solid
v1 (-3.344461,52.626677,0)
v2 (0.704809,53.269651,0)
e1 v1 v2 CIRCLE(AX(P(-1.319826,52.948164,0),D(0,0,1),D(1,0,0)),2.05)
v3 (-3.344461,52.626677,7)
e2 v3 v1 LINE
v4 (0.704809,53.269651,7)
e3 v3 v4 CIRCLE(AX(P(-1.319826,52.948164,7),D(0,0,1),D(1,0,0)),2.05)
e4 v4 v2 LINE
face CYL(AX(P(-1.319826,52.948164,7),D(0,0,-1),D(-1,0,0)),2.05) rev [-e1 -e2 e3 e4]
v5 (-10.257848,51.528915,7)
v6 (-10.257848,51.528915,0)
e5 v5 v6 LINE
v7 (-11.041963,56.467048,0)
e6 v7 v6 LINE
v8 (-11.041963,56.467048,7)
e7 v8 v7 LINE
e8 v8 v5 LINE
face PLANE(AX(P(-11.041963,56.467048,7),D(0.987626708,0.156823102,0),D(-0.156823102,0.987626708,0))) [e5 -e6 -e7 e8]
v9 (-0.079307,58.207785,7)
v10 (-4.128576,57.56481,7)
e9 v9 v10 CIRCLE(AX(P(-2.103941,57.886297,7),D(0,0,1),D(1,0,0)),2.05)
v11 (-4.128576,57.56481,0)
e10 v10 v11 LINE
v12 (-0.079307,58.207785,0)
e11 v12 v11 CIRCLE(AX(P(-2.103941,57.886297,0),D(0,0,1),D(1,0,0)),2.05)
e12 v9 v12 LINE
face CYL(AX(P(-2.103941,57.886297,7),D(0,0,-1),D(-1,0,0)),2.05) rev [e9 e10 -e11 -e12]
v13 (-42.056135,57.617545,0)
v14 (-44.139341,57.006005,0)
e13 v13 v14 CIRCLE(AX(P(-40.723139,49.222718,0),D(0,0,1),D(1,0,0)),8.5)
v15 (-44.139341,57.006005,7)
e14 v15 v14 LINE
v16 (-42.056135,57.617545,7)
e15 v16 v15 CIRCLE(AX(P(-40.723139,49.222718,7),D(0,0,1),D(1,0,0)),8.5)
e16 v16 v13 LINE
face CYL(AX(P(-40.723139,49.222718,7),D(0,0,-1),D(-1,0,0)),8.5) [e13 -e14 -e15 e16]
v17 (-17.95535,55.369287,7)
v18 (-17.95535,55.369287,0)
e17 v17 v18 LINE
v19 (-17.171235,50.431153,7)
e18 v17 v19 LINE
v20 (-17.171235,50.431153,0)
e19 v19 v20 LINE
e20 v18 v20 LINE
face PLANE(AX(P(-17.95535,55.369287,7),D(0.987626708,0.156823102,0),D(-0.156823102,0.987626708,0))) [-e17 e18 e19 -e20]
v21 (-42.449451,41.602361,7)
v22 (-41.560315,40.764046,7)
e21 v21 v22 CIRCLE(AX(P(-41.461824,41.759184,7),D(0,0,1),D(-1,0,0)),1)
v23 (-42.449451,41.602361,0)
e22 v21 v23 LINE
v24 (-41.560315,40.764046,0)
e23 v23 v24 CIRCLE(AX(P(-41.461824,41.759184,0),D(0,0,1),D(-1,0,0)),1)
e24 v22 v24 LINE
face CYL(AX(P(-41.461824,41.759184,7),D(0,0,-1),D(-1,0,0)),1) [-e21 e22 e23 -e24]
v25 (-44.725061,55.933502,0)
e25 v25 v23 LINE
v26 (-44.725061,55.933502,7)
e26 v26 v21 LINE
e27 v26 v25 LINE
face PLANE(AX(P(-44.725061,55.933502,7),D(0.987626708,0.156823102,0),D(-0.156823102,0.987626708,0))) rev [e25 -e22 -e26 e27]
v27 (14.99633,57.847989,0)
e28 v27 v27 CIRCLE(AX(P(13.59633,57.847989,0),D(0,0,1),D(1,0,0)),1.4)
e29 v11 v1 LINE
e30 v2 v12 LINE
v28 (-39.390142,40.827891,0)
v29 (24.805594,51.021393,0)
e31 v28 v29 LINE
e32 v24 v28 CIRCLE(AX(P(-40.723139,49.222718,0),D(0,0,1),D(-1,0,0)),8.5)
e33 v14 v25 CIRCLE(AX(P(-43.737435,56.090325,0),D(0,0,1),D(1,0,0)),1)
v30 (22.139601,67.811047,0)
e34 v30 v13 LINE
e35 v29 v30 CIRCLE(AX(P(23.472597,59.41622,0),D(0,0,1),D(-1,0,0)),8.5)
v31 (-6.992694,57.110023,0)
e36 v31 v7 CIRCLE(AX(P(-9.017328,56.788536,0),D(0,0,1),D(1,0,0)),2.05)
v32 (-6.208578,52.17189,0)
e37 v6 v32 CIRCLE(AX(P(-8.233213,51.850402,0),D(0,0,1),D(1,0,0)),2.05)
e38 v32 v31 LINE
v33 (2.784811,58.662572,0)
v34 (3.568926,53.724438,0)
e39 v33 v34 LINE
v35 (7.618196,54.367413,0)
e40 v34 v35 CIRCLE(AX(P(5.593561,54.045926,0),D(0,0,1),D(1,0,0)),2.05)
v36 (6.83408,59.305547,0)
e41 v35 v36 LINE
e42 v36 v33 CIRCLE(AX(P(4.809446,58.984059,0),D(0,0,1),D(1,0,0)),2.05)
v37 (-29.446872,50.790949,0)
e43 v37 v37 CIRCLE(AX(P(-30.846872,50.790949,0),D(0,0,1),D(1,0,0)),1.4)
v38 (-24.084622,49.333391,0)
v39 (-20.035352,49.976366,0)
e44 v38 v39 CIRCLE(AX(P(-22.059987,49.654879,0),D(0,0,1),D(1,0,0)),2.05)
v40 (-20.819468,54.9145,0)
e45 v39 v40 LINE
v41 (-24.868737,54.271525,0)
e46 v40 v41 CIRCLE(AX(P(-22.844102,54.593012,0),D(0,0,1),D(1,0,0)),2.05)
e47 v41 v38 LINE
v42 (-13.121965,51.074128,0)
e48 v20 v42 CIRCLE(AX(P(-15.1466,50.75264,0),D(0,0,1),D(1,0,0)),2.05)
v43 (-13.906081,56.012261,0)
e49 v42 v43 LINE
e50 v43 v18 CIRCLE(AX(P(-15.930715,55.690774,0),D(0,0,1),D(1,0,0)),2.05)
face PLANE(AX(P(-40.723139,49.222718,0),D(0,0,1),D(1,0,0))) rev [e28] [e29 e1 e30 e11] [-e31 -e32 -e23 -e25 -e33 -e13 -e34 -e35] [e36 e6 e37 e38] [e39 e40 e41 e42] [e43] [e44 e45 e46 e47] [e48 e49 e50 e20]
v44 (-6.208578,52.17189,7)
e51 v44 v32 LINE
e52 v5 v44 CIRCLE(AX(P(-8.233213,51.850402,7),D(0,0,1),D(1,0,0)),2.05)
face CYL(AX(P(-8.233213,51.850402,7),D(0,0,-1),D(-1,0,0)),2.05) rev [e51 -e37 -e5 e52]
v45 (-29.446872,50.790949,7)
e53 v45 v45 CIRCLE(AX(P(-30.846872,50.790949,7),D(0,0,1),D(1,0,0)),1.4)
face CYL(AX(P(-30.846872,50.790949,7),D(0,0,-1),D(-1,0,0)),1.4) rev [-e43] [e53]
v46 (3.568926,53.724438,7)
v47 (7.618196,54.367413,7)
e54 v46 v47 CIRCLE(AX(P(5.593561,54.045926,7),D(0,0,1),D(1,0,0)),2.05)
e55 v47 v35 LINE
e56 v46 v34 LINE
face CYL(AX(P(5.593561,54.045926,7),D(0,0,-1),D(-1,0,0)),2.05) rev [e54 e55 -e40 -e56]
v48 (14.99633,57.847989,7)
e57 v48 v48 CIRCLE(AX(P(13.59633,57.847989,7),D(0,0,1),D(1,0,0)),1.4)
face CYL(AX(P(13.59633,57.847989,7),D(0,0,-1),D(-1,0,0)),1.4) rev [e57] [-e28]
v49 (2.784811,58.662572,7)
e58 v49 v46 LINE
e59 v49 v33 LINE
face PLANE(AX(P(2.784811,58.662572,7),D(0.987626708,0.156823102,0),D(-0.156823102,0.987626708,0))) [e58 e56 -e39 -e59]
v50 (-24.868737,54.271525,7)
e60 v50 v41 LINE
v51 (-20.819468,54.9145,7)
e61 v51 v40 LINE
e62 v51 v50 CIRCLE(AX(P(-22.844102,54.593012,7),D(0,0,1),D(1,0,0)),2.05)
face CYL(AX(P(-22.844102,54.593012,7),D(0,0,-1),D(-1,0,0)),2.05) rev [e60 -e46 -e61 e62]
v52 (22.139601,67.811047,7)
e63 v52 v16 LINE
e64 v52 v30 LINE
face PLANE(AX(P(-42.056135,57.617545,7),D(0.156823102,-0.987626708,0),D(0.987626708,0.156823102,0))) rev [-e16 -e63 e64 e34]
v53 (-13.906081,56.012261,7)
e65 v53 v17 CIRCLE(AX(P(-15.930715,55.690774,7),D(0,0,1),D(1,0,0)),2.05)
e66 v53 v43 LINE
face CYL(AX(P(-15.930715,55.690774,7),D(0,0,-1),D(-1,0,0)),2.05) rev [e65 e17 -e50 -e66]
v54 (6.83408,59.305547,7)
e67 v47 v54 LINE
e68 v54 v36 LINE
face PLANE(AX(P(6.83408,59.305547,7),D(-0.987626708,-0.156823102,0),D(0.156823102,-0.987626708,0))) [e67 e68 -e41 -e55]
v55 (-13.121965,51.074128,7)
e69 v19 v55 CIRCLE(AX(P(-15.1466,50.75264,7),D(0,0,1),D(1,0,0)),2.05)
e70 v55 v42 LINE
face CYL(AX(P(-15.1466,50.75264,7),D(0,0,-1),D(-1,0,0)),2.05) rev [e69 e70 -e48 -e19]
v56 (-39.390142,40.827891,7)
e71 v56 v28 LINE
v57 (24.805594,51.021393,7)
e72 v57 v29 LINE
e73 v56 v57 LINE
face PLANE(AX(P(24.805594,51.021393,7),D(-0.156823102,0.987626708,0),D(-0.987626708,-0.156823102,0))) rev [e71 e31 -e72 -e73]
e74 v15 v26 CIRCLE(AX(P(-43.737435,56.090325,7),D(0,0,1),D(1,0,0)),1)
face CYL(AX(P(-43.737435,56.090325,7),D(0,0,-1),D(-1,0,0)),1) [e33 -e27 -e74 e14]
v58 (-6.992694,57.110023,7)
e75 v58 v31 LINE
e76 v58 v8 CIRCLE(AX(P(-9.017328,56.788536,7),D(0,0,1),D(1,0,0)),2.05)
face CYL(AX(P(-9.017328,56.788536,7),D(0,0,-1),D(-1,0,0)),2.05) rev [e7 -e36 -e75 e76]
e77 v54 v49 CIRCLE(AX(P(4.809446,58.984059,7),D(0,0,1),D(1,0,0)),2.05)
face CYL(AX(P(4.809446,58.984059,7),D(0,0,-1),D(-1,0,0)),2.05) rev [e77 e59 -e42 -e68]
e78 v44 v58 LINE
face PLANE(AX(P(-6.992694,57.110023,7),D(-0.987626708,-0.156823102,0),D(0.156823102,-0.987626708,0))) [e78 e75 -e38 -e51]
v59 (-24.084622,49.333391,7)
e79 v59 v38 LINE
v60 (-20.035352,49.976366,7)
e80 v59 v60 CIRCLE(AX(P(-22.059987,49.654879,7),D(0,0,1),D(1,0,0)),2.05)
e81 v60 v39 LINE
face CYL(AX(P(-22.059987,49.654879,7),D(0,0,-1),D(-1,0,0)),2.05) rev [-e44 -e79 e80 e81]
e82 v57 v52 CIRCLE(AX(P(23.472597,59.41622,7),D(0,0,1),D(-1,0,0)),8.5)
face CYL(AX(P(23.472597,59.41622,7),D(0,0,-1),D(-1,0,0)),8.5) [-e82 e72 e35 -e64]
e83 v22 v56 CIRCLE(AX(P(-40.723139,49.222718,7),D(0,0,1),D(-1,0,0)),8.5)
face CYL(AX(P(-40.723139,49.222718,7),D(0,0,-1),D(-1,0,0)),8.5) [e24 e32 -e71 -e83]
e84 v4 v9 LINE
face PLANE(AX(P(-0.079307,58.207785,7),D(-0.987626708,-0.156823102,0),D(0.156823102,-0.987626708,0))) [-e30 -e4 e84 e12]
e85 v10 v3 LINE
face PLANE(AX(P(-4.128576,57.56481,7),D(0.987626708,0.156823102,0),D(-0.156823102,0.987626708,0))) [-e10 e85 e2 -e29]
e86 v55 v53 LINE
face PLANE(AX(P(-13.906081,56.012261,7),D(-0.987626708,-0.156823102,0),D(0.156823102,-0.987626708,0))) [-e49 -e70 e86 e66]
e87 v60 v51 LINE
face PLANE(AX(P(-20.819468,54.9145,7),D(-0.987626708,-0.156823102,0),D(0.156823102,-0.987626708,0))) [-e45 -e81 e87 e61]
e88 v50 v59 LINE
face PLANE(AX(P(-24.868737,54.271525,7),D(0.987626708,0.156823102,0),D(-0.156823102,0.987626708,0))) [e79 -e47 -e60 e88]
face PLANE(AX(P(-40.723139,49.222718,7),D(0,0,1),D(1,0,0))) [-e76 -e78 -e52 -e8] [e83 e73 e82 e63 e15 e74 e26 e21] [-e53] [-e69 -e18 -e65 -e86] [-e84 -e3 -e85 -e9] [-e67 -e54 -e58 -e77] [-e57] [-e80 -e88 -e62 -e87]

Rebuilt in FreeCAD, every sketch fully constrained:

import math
import FreeCAD as App
import Part
import Sketcher
from FreeCAD import Vector
Q = App.Units.Quantity

doc = App.newDocument("Part")
body = doc.addObject("PartDesign::Body", "Body")

# Sketch on XY plane
sketch1 = body.newObject("Sketcher::SketchObject", "Sketch")
sketch1.AttachmentSupport = (doc.getObject("XY_Plane"), [""])
sketch1.MapMode = "FlatFace"
sketch1.addGeometry(Part.LineSegment(Vector(22.1, 67.8, 0), Vector(-42.1, 57.6, 0)), False)
sketch1.addGeometry(Part.ArcOfCircle(Part.Circle(Vector(-40.7, 49.2, 0), Vector(0, 0, 1), 8.5), math.radians(99.02), math.radians(113.7)), False)
sketch1.addGeometry(Part.ArcOfCircle(Part.Circle(Vector(-43.7, 56.1, 0), Vector(0, 0, 1), 1), math.radians(114), math.radians(189)), False)
sketch1.addGeometry(Part.LineSegment(Vector(-44.7, 55.9, 0), Vector(-42.4, 41.6, 0)), False)
sketch1.addGeometry(Part.ArcOfCircle(Part.Circle(Vector(-41.5, 41.8, 0), Vector(0, 0, 1), 1), math.radians(-171), math.radians(-96)), False)
sketch1.addGeometry(Part.ArcOfCircle(Part.Circle(Vector(-40.7, 49.2, 0), Vector(0, 0, 1), 8.5), math.radians(-95.65), math.radians(-80.98)), False)
sketch1.addGeometry(Part.LineSegment(Vector(-39.4, 40.8, 0), Vector(24.8, 51, 0)), False)
sketch1.addGeometry(Part.ArcOfCircle(Part.Circle(Vector(23.5, 59.4, 0), Vector(0, 0, 1), 8.5), math.radians(-81), math.radians(99)), False)
sketch1.addGeometry(Part.LineSegment(Vector(-7, 57.1, 0), Vector(-6.2, 52.2, 0)), False)
sketch1.addGeometry(Part.ArcOfCircle(Part.Circle(Vector(-8.2, 51.9, 0), Vector(0, 0, 1), 2), math.radians(-171), math.radians(9)), False)
sketch1.addGeometry(Part.LineSegment(Vector(-10.3, 51.5, 0), Vector(-11, 56.5, 0)), False)
sketch1.addGeometry(Part.ArcOfCircle(Part.Circle(Vector(-9, 56.8, 0), Vector(0, 0, 1), 2), math.radians(9), math.radians(189)), False)
sketch1.addGeometry(Part.Circle(Vector(-30.8, 50.8, 0), Vector(0, 0, 1), 1.4), False)
sketch1.addGeometry(Part.LineSegment(Vector(-13.9, 56, 0), Vector(-13.1, 51.1, 0)), False)
sketch1.addGeometry(Part.ArcOfCircle(Part.Circle(Vector(-15.1, 50.8, 0), Vector(0, 0, 1), 2), math.radians(-171), math.radians(9)), False)
sketch1.addGeometry(Part.LineSegment(Vector(-17.2, 50.4, 0), Vector(-18, 55.4, 0)), False)
sketch1.addGeometry(Part.ArcOfCircle(Part.Circle(Vector(-15.9, 55.7, 0), Vector(0, 0, 1), 2), math.radians(9), math.radians(189)), False)
sketch1.addGeometry(Part.LineSegment(Vector(-20.8, 54.9, 0), Vector(-20, 50, 0)), False)
sketch1.addGeometry(Part.ArcOfCircle(Part.Circle(Vector(-22.1, 49.7, 0), Vector(0, 0, 1), 2), math.radians(-171), math.radians(9)), False)
sketch1.addGeometry(Part.LineSegment(Vector(-24.1, 49.3, 0), Vector(-24.9, 54.3, 0)), False)
sketch1.addGeometry(Part.ArcOfCircle(Part.Circle(Vector(-22.8, 54.6, 0), Vector(0, 0, 1), 2), math.radians(9), math.radians(189)), False)
sketch1.addGeometry(Part.LineSegment(Vector(6.8, 59.3, 0), Vector(7.6, 54.4, 0)), False)
sketch1.addGeometry(Part.ArcOfCircle(Part.Circle(Vector(5.6, 54, 0), Vector(0, 0, 1), 2), math.radians(-171), math.radians(9)), False)
sketch1.addGeometry(Part.LineSegment(Vector(3.6, 53.7, 0), Vector(2.8, 58.7, 0)), False)
sketch1.addGeometry(Part.ArcOfCircle(Part.Circle(Vector(4.8, 59, 0), Vector(0, 0, 1), 2), math.radians(9), math.radians(189)), False)
sketch1.addGeometry(Part.LineSegment(Vector(-0.1, 58.2, 0), Vector(0.7, 53.3, 0)), False)
sketch1.addGeometry(Part.ArcOfCircle(Part.Circle(Vector(-1.3, 52.9, 0), Vector(0, 0, 1), 2), math.radians(-171), math.radians(9)), False)
sketch1.addGeometry(Part.LineSegment(Vector(-3.3, 52.6, 0), Vector(-4.1, 57.6, 0)), False)
sketch1.addGeometry(Part.ArcOfCircle(Part.Circle(Vector(-2.1, 57.9, 0), Vector(0, 0, 1), 2), math.radians(9), math.radians(189)), False)
sketch1.addGeometry(Part.Circle(Vector(13.6, 57.8, 0), Vector(0, 0, 1), 1.4), False)
sketch1.addConstraint(Sketcher.Constraint("Tangent", 0, 2, 1, 1))
sketch1.addConstraint(Sketcher.Constraint("Tangent", 1, 2, 2, 1))
sketch1.addConstraint(Sketcher.Constraint("Tangent", 2, 2, 3, 1))
sketch1.addConstraint(Sketcher.Constraint("Tangent", 3, 2, 4, 1))
sketch1.addConstraint(Sketcher.Constraint("Tangent", 4, 2, 5, 1))
sketch1.addConstraint(Sketcher.Constraint("Tangent", 5, 2, 6, 1))
sketch1.addConstraint(Sketcher.Constraint("Tangent", 6, 2, 7, 1))
sketch1.addConstraint(Sketcher.Constraint("Tangent", 7, 2, 0, 1))
sketch1.addConstraint(Sketcher.Constraint("Tangent", 8, 2, 9, 2))
sketch1.addConstraint(Sketcher.Constraint("Tangent", 9, 1, 10, 1))
sketch1.addConstraint(Sketcher.Constraint("Tangent", 10, 2, 11, 2))
sketch1.addConstraint(Sketcher.Constraint("Tangent", 11, 1, 8, 1))
sketch1.addConstraint(Sketcher.Constraint("Tangent", 13, 2, 14, 2))
sketch1.addConstraint(Sketcher.Constraint("Tangent", 14, 1, 15, 1))
sketch1.addConstraint(Sketcher.Constraint("Tangent", 15, 2, 16, 2))
sketch1.addConstraint(Sketcher.Constraint("Tangent", 16, 1, 13, 1))
sketch1.addConstraint(Sketcher.Constraint("Tangent", 17, 2, 18, 2))
sketch1.addConstraint(Sketcher.Constraint("Tangent", 18, 1, 19, 1))
sketch1.addConstraint(Sketcher.Constraint("Tangent", 19, 2, 20, 2))
sketch1.addConstraint(Sketcher.Constraint("Tangent", 20, 1, 17, 1))
sketch1.addConstraint(Sketcher.Constraint("Tangent", 21, 2, 22, 2))
sketch1.addConstraint(Sketcher.Constraint("Tangent", 22, 1, 23, 1))
sketch1.addConstraint(Sketcher.Constraint("Tangent", 23, 2, 24, 2))
sketch1.addConstraint(Sketcher.Constraint("Tangent", 24, 1, 21, 1))
sketch1.addConstraint(Sketcher.Constraint("Tangent", 25, 2, 26, 2))
sketch1.addConstraint(Sketcher.Constraint("Tangent", 26, 1, 27, 1))
sketch1.addConstraint(Sketcher.Constraint("Tangent", 27, 2, 28, 2))
sketch1.addConstraint(Sketcher.Constraint("Tangent", 28, 1, 25, 1))
sketch1.addConstraint(Sketcher.Constraint("Coincident", 5, 3, 1, 3))
sketch1.addConstraint(Sketcher.Constraint("Equal", 2, 4))
sketch1.addConstraint(Sketcher.Constraint("Equal", 1, 5))
sketch1.addConstraint(Sketcher.Constraint("Equal", 5, 7))
sketch1.addConstraint(Sketcher.Constraint("Equal", 9, 11))
sketch1.addConstraint(Sketcher.Constraint("Equal", 11, 14))
sketch1.addConstraint(Sketcher.Constraint("Equal", 14, 16))
sketch1.addConstraint(Sketcher.Constraint("Equal", 16, 18))
sketch1.addConstraint(Sketcher.Constraint("Equal", 18, 20))
sketch1.addConstraint(Sketcher.Constraint("Equal", 20, 22))
sketch1.addConstraint(Sketcher.Constraint("Equal", 22, 24))
sketch1.addConstraint(Sketcher.Constraint("Equal", 24, 26))
sketch1.addConstraint(Sketcher.Constraint("Equal", 26, 28))
sketch1.addConstraint(Sketcher.Constraint("Equal", 12, 29))
sketch1.addConstraint(Sketcher.Constraint("Perpendicular", 0, 3))
sketch1.addConstraint(Sketcher.Constraint("Perpendicular", 6, 8))
sketch1.addConstraint(Sketcher.Constraint("Parallel", 10, 13))
sketch1.addConstraint(Sketcher.Constraint("Parallel", 15, 17))
sketch1.addConstraint(Sketcher.Constraint("Parallel", 19, 21))
sketch1.addConstraint(Sketcher.Constraint("Parallel", 23, 25))
sketch1.addConstraint(Sketcher.Constraint("Equal", 10, 13))
sketch1.addConstraint(Sketcher.Constraint("Equal", 15, 17))
sketch1.addConstraint(Sketcher.Constraint("Equal", 19, 21))
sketch1.addConstraint(Sketcher.Constraint("Equal", 23, 25))
sketch1.addConstraint(Sketcher.Constraint("Radius", 2, Q("1 mm")))
sketch1.addConstraint(Sketcher.Constraint("Diameter", 12, Q("2.8 mm")))
sketch1.addConstraint(Sketcher.Constraint("Radius", 1, Q("8.5 mm")))
sketch1.addConstraint(Sketcher.Constraint("Radius", 9, Q("2.05 mm")))
sketch1.addConstraint(Sketcher.Constraint("Distance", 0, Q("65 mm")))
sketch1.addConstraint(Sketcher.Constraint("Distance", 8, Q("5 mm")))
sketch1.addConstraint(Sketcher.Constraint("DistanceX", 13, 2, 10, 2, Q("2.080002 mm")))
sketch1.addConstraint(Sketcher.Constraint("DistanceX", 17, 2, 15, 2, Q("2.080002 mm")))
sketch1.addConstraint(Sketcher.Constraint("DistanceX", 25, 2, 23, 2, Q("2.080002 mm")))
sketch1.addConstraint(Sketcher.Constraint("DistanceX", 14, 3, -1, 1, Q("15.1466 mm")))
sketch1.addConstraint(Sketcher.Constraint("DistanceY", -1, 1, 2, 2, Q("55.933502 mm")))
sketch1.addConstraint(Sketcher.Constraint("DistanceX", -1, 1, 7, 2, Q("22.139601 mm")))
sketch1.addConstraint(Sketcher.Constraint("DistanceY", -1, 1, 20, 1, Q("54.9145 mm")))
sketch1.addConstraint(Sketcher.Constraint("DistanceY", 5, 3, 7, 3, Q("10.193502 mm")))
sketch1.addConstraint(Sketcher.Constraint("DistanceX", 2, 3, 0, 2, Q("1.6813 mm")))
sketch1.addConstraint(Sketcher.Constraint("DistanceX", 12, 3, -1, 1, Q("30.846872 mm")))
sketch1.addConstraint(Sketcher.Constraint("DistanceY", -1, 1, 12, 3, Q("50.790949 mm")))
sketch1.addConstraint(Sketcher.Constraint("DistanceY", -1, 1, 14, 3, Q("50.75264 mm")))
sketch1.addConstraint(Sketcher.Constraint("DistanceX", -1, 1, 22, 3, Q("5.593561 mm")))
sketch1.addConstraint(Sketcher.Constraint("DistanceY", -1, 1, 24, 3, Q("58.984059 mm")))
sketch1.addConstraint(Sketcher.Constraint("DistanceX", -1, 1, 29, 3, Q("13.59633 mm")))
sketch1.addConstraint(Sketcher.Constraint("DistanceY", -1, 1, 29, 3, Q("57.847989 mm")))
sketch1.addConstraint(Sketcher.Constraint("DistanceY", -1, 1, 8, 2, Q("52.17189 mm")))
sketch1.addConstraint(Sketcher.Constraint("DistanceY", -1, 1, 25, 2, Q("53.269651 mm")))
pad1 = body.newObject("PartDesign::Pad", "Pad")
pad1.Profile = sketch1
pad1.Length = 7

doc.recompute()
